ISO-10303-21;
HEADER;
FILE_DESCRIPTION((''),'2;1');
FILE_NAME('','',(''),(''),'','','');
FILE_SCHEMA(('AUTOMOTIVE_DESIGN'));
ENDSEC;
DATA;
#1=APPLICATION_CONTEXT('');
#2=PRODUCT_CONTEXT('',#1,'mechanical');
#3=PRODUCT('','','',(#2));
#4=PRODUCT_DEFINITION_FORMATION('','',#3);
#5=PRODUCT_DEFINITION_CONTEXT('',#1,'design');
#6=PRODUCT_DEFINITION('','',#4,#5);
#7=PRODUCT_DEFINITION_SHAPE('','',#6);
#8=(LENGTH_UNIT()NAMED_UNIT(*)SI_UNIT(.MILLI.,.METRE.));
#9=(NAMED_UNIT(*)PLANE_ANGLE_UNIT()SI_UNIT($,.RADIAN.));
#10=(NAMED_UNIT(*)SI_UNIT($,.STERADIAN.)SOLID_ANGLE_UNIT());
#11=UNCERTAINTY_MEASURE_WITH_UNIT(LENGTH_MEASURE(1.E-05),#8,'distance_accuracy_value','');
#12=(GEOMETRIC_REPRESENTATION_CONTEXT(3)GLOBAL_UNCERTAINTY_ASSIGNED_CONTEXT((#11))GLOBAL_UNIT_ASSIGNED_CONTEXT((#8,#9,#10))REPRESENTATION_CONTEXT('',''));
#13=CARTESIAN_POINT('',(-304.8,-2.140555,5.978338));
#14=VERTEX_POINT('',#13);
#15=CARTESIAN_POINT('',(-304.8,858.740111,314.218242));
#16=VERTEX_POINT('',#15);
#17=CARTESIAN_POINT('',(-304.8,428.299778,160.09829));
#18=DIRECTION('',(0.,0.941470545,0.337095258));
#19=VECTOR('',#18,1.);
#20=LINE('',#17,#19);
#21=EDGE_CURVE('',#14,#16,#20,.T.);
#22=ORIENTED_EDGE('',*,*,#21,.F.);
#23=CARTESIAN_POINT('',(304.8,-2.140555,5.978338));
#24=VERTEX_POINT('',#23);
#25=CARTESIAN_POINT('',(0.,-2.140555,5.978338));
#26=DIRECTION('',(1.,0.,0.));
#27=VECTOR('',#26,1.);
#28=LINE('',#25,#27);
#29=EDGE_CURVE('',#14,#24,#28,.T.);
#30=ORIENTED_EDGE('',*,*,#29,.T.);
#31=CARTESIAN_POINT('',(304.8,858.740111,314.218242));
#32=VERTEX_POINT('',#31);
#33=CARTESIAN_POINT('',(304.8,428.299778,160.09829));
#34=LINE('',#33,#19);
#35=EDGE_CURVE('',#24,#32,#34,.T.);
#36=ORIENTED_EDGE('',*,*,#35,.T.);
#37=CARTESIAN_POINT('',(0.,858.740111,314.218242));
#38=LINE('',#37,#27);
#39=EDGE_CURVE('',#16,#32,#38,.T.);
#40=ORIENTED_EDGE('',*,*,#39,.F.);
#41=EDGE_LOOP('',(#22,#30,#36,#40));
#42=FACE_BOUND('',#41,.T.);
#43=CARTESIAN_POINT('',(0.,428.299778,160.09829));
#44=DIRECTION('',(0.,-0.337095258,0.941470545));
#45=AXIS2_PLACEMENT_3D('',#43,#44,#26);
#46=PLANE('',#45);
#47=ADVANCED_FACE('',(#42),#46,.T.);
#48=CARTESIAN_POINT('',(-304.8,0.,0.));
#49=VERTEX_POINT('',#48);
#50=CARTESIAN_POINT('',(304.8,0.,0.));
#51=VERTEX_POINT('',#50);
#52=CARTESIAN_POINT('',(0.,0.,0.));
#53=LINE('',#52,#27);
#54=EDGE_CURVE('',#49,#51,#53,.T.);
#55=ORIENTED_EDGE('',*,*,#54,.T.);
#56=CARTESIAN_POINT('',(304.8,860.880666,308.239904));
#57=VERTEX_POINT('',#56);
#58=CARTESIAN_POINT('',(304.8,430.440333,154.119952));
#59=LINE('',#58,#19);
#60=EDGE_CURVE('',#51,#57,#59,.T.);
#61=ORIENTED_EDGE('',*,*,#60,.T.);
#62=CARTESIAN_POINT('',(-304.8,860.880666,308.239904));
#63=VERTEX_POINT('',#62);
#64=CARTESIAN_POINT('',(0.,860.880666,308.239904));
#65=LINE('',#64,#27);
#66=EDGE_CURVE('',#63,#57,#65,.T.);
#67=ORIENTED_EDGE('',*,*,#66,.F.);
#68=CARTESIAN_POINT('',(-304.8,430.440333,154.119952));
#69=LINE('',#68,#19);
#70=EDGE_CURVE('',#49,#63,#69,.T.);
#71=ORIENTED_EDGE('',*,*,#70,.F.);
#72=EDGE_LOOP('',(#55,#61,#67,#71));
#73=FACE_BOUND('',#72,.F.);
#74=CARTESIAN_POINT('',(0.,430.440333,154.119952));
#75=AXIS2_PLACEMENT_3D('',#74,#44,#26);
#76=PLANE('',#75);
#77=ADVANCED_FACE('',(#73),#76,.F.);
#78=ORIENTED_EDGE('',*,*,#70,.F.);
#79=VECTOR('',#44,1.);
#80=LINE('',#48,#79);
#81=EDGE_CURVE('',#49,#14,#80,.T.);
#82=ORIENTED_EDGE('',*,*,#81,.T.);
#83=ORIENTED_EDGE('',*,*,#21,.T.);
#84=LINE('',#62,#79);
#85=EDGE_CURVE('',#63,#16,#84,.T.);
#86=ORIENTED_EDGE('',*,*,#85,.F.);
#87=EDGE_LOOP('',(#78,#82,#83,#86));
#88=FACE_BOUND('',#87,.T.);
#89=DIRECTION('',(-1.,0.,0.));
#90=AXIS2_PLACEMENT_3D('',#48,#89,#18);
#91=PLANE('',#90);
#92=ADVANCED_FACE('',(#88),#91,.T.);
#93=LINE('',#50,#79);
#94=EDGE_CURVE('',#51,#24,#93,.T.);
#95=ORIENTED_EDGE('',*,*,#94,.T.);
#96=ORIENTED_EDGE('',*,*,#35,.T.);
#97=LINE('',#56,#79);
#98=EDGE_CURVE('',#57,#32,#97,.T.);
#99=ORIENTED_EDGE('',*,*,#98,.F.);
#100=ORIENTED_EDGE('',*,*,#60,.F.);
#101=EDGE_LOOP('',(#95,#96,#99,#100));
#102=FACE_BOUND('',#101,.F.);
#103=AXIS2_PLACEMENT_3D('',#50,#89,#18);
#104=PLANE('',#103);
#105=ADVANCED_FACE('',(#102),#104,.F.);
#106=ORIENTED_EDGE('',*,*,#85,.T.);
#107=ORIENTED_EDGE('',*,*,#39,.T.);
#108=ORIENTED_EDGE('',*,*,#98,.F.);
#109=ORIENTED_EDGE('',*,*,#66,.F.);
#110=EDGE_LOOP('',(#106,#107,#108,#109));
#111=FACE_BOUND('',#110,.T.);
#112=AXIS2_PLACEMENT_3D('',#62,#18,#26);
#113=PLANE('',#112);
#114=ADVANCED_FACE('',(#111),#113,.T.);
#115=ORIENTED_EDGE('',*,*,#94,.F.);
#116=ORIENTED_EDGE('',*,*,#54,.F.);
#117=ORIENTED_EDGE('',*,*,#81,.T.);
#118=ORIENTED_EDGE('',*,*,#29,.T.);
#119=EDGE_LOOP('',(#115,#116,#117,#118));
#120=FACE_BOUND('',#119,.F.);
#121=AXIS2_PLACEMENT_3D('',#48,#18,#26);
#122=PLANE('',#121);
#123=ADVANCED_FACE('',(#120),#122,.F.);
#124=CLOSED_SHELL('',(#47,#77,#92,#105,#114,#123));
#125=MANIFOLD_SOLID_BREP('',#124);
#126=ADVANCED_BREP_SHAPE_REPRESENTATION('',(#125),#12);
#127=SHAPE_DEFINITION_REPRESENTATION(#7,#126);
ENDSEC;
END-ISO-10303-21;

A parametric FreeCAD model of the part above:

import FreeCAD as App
import Part
import Sketcher

V = App.Vector
Q = App.Units.Quantity

doc = App.newDocument("Part")
body = doc.addObject("PartDesign::Body", "Body")

# Sketch on XY plane
sketch1 = body.newObject("Sketcher::SketchObject", "Sketch")
sketch1.AttachmentSupport = (doc.getObject("XY_Plane"), [""])
sketch1.MapMode = "FlatFace"
sketch1.addGeometry(Part.LineSegment(V(-305, 914, 0), V(-305, 0, 0)), False)
sketch1.addGeometry(Part.LineSegment(V(-305, 0, 0), V(305, 0, 0)), False)
sketch1.addGeometry(Part.LineSegment(V(305, 0, 0), V(305, 914, 0)), False)
sketch1.addGeometry(Part.LineSegment(V(305, 914, 0), V(-305, 914, 0)), False)
sketch1.addConstraint(Sketcher.Constraint("Coincident", 0, 2, 1, 1))
sketch1.addConstraint(Sketcher.Constraint("Coincident", 1, 2, 2, 1))
sketch1.addConstraint(Sketcher.Constraint("Coincident", 2, 2, 3, 1))
sketch1.addConstraint(Sketcher.Constraint("Coincident", 3, 2, 0, 1))
sketch1.addConstraint(Sketcher.Constraint("Vertical", 0))
sketch1.addConstraint(Sketcher.Constraint("Horizontal", 1))
sketch1.addConstraint(Sketcher.Constraint("Vertical", 2))
sketch1.addConstraint(Sketcher.Constraint("Horizontal", 3))
sketch1.addConstraint(Sketcher.Constraint("Symmetric", 0, 2, 1, 2, -1, 1))
sketch1.addConstraint(Sketcher.Constraint("DistanceX", 1, 1, 1, 2, Q("24 in")))
sketch1.addConstraint(Sketcher.Constraint("DistanceY", 0, 2, 0, 1, Q("36 in")))
pad1 = body.newObject("PartDesign::Pad", "Pad")
pad1.Profile = sketch1
pad1.Length = Q("0.25 in")
body2 = doc.addObject("PartDesign::Body", "Body001")
doc.recompute()

body.Placement = App.Placement(V(0, 0, 0), App.Rotation(V(1, 0, 0), 19.7))
boolean = body2.newObject("PartDesign::Boolean", "Boolean")
boolean.Type = "Fuse"
boolean.addObjects([body])

doc.recompute()
